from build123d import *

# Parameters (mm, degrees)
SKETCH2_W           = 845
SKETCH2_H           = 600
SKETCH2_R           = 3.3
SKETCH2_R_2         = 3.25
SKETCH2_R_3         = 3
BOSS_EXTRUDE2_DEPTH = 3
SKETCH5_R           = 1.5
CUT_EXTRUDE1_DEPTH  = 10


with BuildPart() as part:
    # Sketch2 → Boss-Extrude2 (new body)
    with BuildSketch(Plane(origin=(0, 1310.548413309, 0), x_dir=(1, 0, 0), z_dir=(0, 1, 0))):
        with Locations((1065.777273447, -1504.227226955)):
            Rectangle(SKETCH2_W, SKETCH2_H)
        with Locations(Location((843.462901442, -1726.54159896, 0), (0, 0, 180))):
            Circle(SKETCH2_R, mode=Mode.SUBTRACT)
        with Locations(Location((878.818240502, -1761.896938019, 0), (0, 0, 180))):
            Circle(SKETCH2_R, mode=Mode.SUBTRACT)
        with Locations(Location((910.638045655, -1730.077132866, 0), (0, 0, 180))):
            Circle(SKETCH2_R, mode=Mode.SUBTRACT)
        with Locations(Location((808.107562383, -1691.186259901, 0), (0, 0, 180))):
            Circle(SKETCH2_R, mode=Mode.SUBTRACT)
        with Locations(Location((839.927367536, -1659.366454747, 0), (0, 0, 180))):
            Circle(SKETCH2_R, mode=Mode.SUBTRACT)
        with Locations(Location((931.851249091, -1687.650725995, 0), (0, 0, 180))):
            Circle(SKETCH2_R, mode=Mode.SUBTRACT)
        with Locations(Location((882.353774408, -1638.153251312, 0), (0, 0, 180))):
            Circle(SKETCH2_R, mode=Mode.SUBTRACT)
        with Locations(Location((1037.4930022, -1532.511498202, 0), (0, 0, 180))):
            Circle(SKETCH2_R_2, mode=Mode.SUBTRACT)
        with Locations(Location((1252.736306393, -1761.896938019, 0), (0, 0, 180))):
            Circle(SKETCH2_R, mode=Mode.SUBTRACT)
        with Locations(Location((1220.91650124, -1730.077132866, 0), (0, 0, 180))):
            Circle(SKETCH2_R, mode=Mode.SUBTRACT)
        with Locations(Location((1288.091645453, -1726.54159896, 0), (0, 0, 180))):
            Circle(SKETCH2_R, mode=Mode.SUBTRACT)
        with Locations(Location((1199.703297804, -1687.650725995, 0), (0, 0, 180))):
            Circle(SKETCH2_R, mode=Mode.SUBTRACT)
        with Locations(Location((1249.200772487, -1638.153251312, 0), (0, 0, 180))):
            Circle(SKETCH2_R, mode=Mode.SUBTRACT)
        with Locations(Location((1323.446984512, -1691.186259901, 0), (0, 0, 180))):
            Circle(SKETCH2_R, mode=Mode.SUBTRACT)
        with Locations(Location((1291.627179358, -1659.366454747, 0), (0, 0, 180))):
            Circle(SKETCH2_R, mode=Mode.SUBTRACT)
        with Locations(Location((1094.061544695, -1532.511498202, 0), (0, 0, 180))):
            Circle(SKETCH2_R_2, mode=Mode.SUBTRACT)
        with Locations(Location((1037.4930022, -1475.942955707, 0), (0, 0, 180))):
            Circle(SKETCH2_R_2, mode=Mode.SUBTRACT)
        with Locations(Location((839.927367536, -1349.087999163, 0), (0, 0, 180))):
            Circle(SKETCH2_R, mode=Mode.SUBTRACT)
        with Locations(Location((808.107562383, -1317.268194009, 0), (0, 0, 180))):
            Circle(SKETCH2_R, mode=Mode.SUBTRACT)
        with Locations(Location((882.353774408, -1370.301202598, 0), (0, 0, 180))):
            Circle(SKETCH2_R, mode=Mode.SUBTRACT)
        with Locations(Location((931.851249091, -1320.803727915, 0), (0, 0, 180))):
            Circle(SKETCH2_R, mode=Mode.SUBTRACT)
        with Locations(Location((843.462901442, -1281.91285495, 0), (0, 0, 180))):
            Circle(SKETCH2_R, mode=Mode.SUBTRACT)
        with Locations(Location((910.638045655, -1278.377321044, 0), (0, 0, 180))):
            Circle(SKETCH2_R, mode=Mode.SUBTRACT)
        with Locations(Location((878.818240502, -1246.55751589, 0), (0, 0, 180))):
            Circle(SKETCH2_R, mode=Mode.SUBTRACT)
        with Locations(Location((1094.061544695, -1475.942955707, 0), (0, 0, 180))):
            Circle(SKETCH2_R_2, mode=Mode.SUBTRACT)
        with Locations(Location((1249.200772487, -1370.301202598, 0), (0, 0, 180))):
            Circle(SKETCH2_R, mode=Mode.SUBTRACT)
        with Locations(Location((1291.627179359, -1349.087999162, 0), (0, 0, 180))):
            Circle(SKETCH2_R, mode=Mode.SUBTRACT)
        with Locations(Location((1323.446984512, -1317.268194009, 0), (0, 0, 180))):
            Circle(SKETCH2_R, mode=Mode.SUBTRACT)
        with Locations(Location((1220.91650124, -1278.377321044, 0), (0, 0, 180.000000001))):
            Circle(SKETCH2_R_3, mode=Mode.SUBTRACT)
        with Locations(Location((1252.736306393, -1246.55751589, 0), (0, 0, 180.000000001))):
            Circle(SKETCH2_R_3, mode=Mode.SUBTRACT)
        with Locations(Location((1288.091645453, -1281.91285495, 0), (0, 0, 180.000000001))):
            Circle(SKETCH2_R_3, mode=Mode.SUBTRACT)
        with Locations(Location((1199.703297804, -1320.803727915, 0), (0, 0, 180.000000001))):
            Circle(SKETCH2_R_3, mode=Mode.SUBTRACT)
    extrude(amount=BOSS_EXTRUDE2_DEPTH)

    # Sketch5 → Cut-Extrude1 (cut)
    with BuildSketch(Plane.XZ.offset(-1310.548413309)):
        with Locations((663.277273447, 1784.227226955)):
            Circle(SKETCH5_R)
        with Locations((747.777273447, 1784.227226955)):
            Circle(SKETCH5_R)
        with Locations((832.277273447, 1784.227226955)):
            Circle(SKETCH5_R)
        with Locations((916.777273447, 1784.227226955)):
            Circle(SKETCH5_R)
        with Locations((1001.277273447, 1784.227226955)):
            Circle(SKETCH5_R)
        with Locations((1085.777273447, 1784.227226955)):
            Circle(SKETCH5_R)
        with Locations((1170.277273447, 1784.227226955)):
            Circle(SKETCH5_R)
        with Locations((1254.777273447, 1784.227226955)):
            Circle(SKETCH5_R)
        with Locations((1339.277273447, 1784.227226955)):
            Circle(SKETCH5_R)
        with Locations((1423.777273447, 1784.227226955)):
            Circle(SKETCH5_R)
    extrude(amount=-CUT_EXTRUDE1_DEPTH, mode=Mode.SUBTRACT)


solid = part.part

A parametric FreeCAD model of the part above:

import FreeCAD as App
import Part
import Sketcher

V = App.Vector


def add_polygon(sketch, points):
    """Adds a closed chain of lines whose ends are joined by coincident constraints."""
    first, n = sketch.GeometryCount, len(points)
    for a, b in zip(points, points[1:] + points[:1]):
        sketch.addGeometry(Part.LineSegment(App.Vector(*a, 0), App.Vector(*b, 0)), False)
    for i in range(n):
        sketch.addConstraint(Sketcher.Constraint("Coincident", first + i, 2, first + (i + 1) % n, 1))

doc = App.newDocument("Part")
body = doc.addObject("PartDesign::Body", "Body")

sketch1 = doc.addObject("Sketcher::SketchObject", "Sketch")
body.addObject(sketch1)
sketch1.AttachmentSupport = (doc.XZ_Plane, [""])
sketch1.MapMode = "FlatFace"
sketch1.AttachmentOffset = App.Placement(V(0, 0, -1310.548413), App.Rotation())
add_polygon(sketch1, [(643.3, 1204.2), (643.3, 1804.2), (1488.3, 1804.2), (1488.3, 1204.2)])
sketch1.addGeometry(Part.Circle(V(843.5, 1726.5, 0), V(0, 0, 1), 3.3), False)
sketch1.addGeometry(Part.Circle(V(878.8, 1761.9, 0), V(0, 0, 1), 3.3), False)
sketch1.addGeometry(Part.Circle(V(910.6, 1730.1, 0), V(0, 0, 1), 3.3), False)
sketch1.addGeometry(Part.Circle(V(808.1, 1691.2, 0), V(0, 0, 1), 3.3), False)
sketch1.addGeometry(Part.Circle(V(839.9, 1659.4, 0), V(0, 0, 1), 3.3), False)
sketch1.addGeometry(Part.Circle(V(931.9, 1687.7, 0), V(0, 0, 1), 3.3), False)
sketch1.addGeometry(Part.Circle(V(882.4, 1638.2, 0), V(0, 0, 1), 3.3), False)
sketch1.addGeometry(Part.Circle(V(1037.5, 1532.5, 0), V(0, 0, 1), 3.2), False)
sketch1.addGeometry(Part.Circle(V(1252.7, 1761.9, 0), V(0, 0, 1), 3.3), False)
sketch1.addGeometry(Part.Circle(V(1220.9, 1730.1, 0), V(0, 0, 1), 3.3), False)
sketch1.addGeometry(Part.Circle(V(1288.1, 1726.5, 0), V(0, 0, 1), 3.3), False)
sketch1.addGeometry(Part.Circle(V(1199.7, 1687.7, 0), V(0, 0, 1), 3.3), False)
sketch1.addGeometry(Part.Circle(V(1249.2, 1638.2, 0), V(0, 0, 1), 3.3), False)
sketch1.addGeometry(Part.Circle(V(1323.4, 1691.2, 0), V(0, 0, 1), 3.3), False)
sketch1.addGeometry(Part.Circle(V(1291.6, 1659.4, 0), V(0, 0, 1), 3.3), False)
sketch1.addGeometry(Part.Circle(V(1094.1, 1532.5, 0), V(0, 0, 1), 3.2), False)
sketch1.addGeometry(Part.Circle(V(1037.5, 1475.9, 0), V(0, 0, 1), 3.2), False)
sketch1.addGeometry(Part.Circle(V(839.9, 1349.1, 0), V(0, 0, 1), 3.3), False)
sketch1.addGeometry(Part.Circle(V(808.1, 1317.3, 0), V(0, 0, 1), 3.3), False)
sketch1.addGeometry(Part.Circle(V(882.4, 1370.3, 0), V(0, 0, 1), 3.3), False)
sketch1.addGeometry(Part.Circle(V(931.9, 1320.8, 0), V(0, 0, 1), 3.3), False)
sketch1.addGeometry(Part.Circle(V(843.5, 1281.9, 0), V(0, 0, 1), 3.3), False)
sketch1.addGeometry(Part.Circle(V(910.6, 1278.4, 0), V(0, 0, 1), 3.3), False)
sketch1.addGeometry(Part.Circle(V(878.8, 1246.6, 0), V(0, 0, 1), 3.3), False)
sketch1.addGeometry(Part.Circle(V(1094.1, 1475.9, 0), V(0, 0, 1), 3.2), False)
sketch1.addGeometry(Part.Circle(V(1249.2, 1370.3, 0), V(0, 0, 1), 3.3), False)
sketch1.addGeometry(Part.Circle(V(1199.7, 1320.8, 0), V(0, 0, 1), 3), False)
sketch1.addGeometry(Part.Circle(V(1291.6, 1349.1, 0), V(0, 0, 1), 3.3), False)
sketch1.addGeometry(Part.Circle(V(1323.4, 1317.3, 0), V(0, 0, 1), 3.3), False)
sketch1.addGeometry(Part.Circle(V(1220.9, 1278.4, 0), V(0, 0, 1), 3), False)
sketch1.addGeometry(Part.Circle(V(1252.7, 1246.6, 0), V(0, 0, 1), 3), False)
sketch1.addGeometry(Part.Circle(V(1288.1, 1281.9, 0), V(0, 0, 1), 3), False)
sketch1.addConstraint(Sketcher.Constraint("Vertical", 0))
sketch1.addConstraint(Sketcher.Constraint("Horizontal", 1))
sketch1.addConstraint(Sketcher.Constraint("Vertical", 2))
sketch1.addConstraint(Sketcher.Constraint("Horizontal", 3))
sketch1.addConstraint(Sketcher.Constraint("Equal", 4, 5))
sketch1.addConstraint(Sketcher.Constraint("Equal", 5, 6))
sketch1.addConstraint(Sketcher.Constraint("Equal", 6, 7))
sketch1.addConstraint(Sketcher.Constraint("Equal", 7, 8))
sketch1.addConstraint(Sketcher.Constraint("Equal", 8, 9))
sketch1.addConstraint(Sketcher.Constraint("Equal", 9, 10))
sketch1.addConstraint(Sketcher.Constraint("Equal", 10, 12))
sketch1.addConstraint(Sketcher.Constraint("Equal", 12, 13))
sketch1.addConstraint(Sketcher.Constraint("Equal", 13, 14))
sketch1.addConstraint(Sketcher.Constraint("Equal", 14, 15))
sketch1.addConstraint(Sketcher.Constraint("Equal", 15, 16))
sketch1.addConstraint(Sketcher.Constraint("Equal", 16, 17))
sketch1.addConstraint(Sketcher.Constraint("Equal", 17, 18))
sketch1.addConstraint(Sketcher.Constraint("Equal", 11, 19))
sketch1.addConstraint(Sketcher.Constraint("Equal", 19, 20))
sketch1.addConstraint(Sketcher.Constraint("Equal", 18, 21))
sketch1.addConstraint(Sketcher.Constraint("Equal", 21, 22))
sketch1.addConstraint(Sketcher.Constraint("Equal", 22, 23))
sketch1.addConstraint(Sketcher.Constraint("Equal", 23, 24))
sketch1.addConstraint(Sketcher.Constraint("Equal", 24, 25))
sketch1.addConstraint(Sketcher.Constraint("Equal", 25, 26))
sketch1.addConstraint(Sketcher.Constraint("Equal", 26, 27))
sketch1.addConstraint(Sketcher.Constraint("Equal", 20, 28))
sketch1.addConstraint(Sketcher.Constraint("Equal", 27, 29))
sketch1.addConstraint(Sketcher.Constraint("Equal", 29, 31))
sketch1.addConstraint(Sketcher.Constraint("Equal", 31, 32))
sketch1.addConstraint(Sketcher.Constraint("Equal", 30, 33))
sketch1.addConstraint(Sketcher.Constraint("Equal", 33, 34))
sketch1.addConstraint(Sketcher.Constraint("Equal", 34, 35))
sketch1.addConstraint(Sketcher.Constraint("Horizontal", 5, 3, 12, 3))
sketch1.addConstraint(Sketcher.Constraint("Horizontal", 6, 3, 13, 3))
sketch1.addConstraint(Sketcher.Constraint("Horizontal", 4, 3, 14, 3))
sketch1.addConstraint(Sketcher.Constraint("Horizontal", 9, 3, 15, 3))
sketch1.addConstraint(Sketcher.Constraint("Horizontal", 10, 3, 16, 3))
sketch1.addConstraint(Sketcher.Constraint("Horizontal", 7, 3, 17, 3))
sketch1.addConstraint(Sketcher.Constraint("Horizontal", 8, 3, 18, 3))
sketch1.addConstraint(Sketcher.Constraint("Horizontal", 11, 3, 19, 3))
sketch1.addConstraint(Sketcher.Constraint("Horizontal", 20, 3, 28, 3))
sketch1.addConstraint(Sketcher.Constraint("Horizontal", 23, 3, 29, 3))
sketch1.addConstraint(Sketcher.Constraint("Horizontal", 24, 3, 30, 3))
sketch1.addConstraint(Sketcher.Constraint("Horizontal", 21, 3, 31, 3))
sketch1.addConstraint(Sketcher.Constraint("Horizontal", 22, 3, 32, 3))
sketch1.addConstraint(Sketcher.Constraint("Horizontal", 26, 3, 33, 3))
sketch1.addConstraint(Sketcher.Constraint("Horizontal", 27, 3, 34, 3))
sketch1.addConstraint(Sketcher.Constraint("Horizontal", 25, 3, 35, 3))
sketch1.addConstraint(Sketcher.Constraint("Vertical", 11, 3, 20, 3))
sketch1.addConstraint(Sketcher.Constraint("Vertical", 8, 3, 21, 3))
sketch1.addConstraint(Sketcher.Constraint("Vertical", 7, 3, 22, 3))
sketch1.addConstraint(Sketcher.Constraint("Vertical", 10, 3, 23, 3))
sketch1.addConstraint(Sketcher.Constraint("Vertical", 9, 3, 24, 3))
sketch1.addConstraint(Sketcher.Constraint("Vertical", 4, 3, 25, 3))
sketch1.addConstraint(Sketcher.Constraint("Vertical", 6, 3, 26, 3))
sketch1.addConstraint(Sketcher.Constraint("Vertical", 5, 3, 27, 3))
sketch1.addConstraint(Sketcher.Constraint("Vertical", 19, 3, 28, 3))
sketch1.addConstraint(Sketcher.Constraint("Vertical", 16, 3, 29, 3))
sketch1.addConstraint(Sketcher.Constraint("Vertical", 15, 3, 30, 3))
sketch1.addConstraint(Sketcher.Constraint("Vertical", 18, 3, 31, 3))
sketch1.addConstraint(Sketcher.Constraint("Vertical", 17, 3, 32, 3))
sketch1.addConstraint(Sketcher.Constraint("Vertical", 13, 3, 33, 3))
sketch1.addConstraint(Sketcher.Constraint("Vertical", 12, 3, 34, 3))
sketch1.addConstraint(Sketcher.Constraint("Vertical", 14, 3, 35, 3))
sketch1.addConstraint(Sketcher.Constraint("Diameter", 30, 6.0))
sketch1.addConstraint(Sketcher.Constraint("Diameter", 4, 6.6))
sketch1.addConstraint(Sketcher.Constraint("Diameter", 11, 6.5))
sketch1.addConstraint(Sketcher.Constraint("DistanceX", 1, 1, 1, 2, 845.0))
sketch1.addConstraint(Sketcher.Constraint("DistanceY", 0, 1, 0, 2, 600.0))
sketch1.addConstraint(Sketcher.Constraint("DistanceY", -1, 1, 21, 3, 1349.087999))
sketch1.addConstraint(Sketcher.Constraint("DistanceX", -1, 1, 4, 3, 843.462901))
sketch1.addConstraint(Sketcher.Constraint("DistanceY", -1, 1, 4, 3, 1726.541599))
sketch1.addConstraint(Sketcher.Constraint("DistanceY", -1, 1, 11, 3, 1532.511498))
sketch1.addConstraint(Sketcher.Constraint("DistanceX", -1, 1, 13, 3, 1220.916501))
sketch1.addConstraint(Sketcher.Constraint("DistanceX", 4, 3, 11, 3, 194.030101))
sketch1.addConstraint(Sketcher.Constraint("DistanceX", 6, 3, 14, 3, 377.4536))
sketch1.addConstraint(Sketcher.Constraint("DistanceY", 25, 3, 20, 3, 194.030101))
sketch1.addConstraint(Sketcher.Constraint("DistanceX", -1, 1, 5, 3, 878.818241))
sketch1.addConstraint(Sketcher.Constraint("DistanceY", -1, 1, 5, 3, 1761.896938))
sketch1.addConstraint(Sketcher.Constraint("DistanceY", -1, 1, 7, 3, 1691.18626))
sketch1.addConstraint(Sketcher.Constraint("DistanceX", -1, 1, 9, 3, 931.851249))
sketch1.addConstraint(Sketcher.Constraint("DistanceY", -1, 1, 10, 3, 1638.153251))
sketch1.addConstraint(Sketcher.Constraint("DistanceX", -1, 1, 18, 3, 1291.627179))
sketch1.addConstraint(Sketcher.Constraint("DistanceY", -1, 1, 26, 3, 1278.377321))
sketch1.addConstraint(Sketcher.Constraint("DistanceX", 7, 3, 4, 3, 35.355339))
sketch1.addConstraint(Sketcher.Constraint("DistanceX", 8, 3, 6, 3, 70.710678))
sketch1.addConstraint(Sketcher.Constraint("DistanceY", 8, 3, 6, 3, 70.710678))
sketch1.addConstraint(Sketcher.Constraint("DistanceX", 8, 3, 9, 3, 91.923882))
sketch1.addConstraint(Sketcher.Constraint("DistanceY", 8, 3, 9, 3, 28.284271))
sketch1.addConstraint(Sketcher.Constraint("DistanceX", 10, 3, 6, 3, 28.284271))
sketch1.addConstraint(Sketcher.Constraint("DistanceY", 10, 3, 6, 3, 91.923882))
sketch1.addConstraint(Sketcher.Constraint("DistanceX", 6, 3, 12, 3, 342.098261))
sketch1.addConstraint(Sketcher.Constraint("DistanceX", 15, 3, 12, 3, 53.033009))
sketch1.addConstraint(Sketcher.Constraint("DistanceX", 13, 3, 16, 3, 28.284271))
sketch1.addConstraint(Sketcher.Constraint("DistanceX", 14, 3, 17, 3, 35.355339))
sketch1.addConstraint(Sketcher.Constraint("DistanceY", 20, 3, 9, 3, 211.70777))
sketch1.addConstraint(Sketcher.Constraint("DistanceY", 22, 3, 20, 3, 158.674762))
sketch1.addConstraint(Sketcher.Constraint("DistanceY", 22, 3, 23, 3, 53.033009))
sketch1.addConstraint(Sketcher.Constraint("DistanceX", 23, 3, 19, 3, 211.70777))
sketch1.addConstraint(Sketcher.Constraint("DistanceY", 24, 3, 21, 3, 28.284271))
sketch1.addConstraint(Sketcher.Constraint("DistanceY", 27, 3, 25, 3, 35.355339))
sketch1.addConstraint(Sketcher.Constraint("DistanceX", 0, 2, 7, 3, 164.830289))
sketch1.addConstraint(Sketcher.Constraint("DistanceY", 5, 3, 0, 2, 42.330289))
pad1 = doc.addObject("PartDesign::Pad", "Pad")
body.addObject(pad1)
pad1.Profile = sketch1
pad1.Length = 3
pad1.Reversed = True

sketch2 = doc.addObject("Sketcher::SketchObject", "Sketch001")
body.addObject(sketch2)
sketch2.AttachmentSupport = (doc.XZ_Plane, [""])
sketch2.MapMode = "FlatFace"
sketch2.AttachmentOffset = App.Placement(V(0, 0, -1310.548413), App.Rotation())
sketch2.addGeometry(Part.Circle(V(663.3, 1784.2, 0), V(0, 0, 1), 1.5), False)
sketch2.addGeometry(Part.Circle(V(747.8, 1784.2, 0), V(0, 0, 1), 1.5), False)
sketch2.addGeometry(Part.Circle(V(832.3, 1784.2, 0), V(0, 0, 1), 1.5), False)
sketch2.addGeometry(Part.Circle(V(916.8, 1784.2, 0), V(0, 0, 1), 1.5), False)
sketch2.addGeometry(Part.Circle(V(1001.3, 1784.2, 0), V(0, 0, 1), 1.5), False)
sketch2.addGeometry(Part.Circle(V(1085.8, 1784.2, 0), V(0, 0, 1), 1.5), False)
sketch2.addGeometry(Part.Circle(V(1170.3, 1784.2, 0), V(0, 0, 1), 1.5), False)
sketch2.addGeometry(Part.Circle(V(1254.8, 1784.2, 0), V(0, 0, 1), 1.5), False)
sketch2.addGeometry(Part.Circle(V(1339.3, 1784.2, 0), V(0, 0, 1), 1.5), False)
sketch2.addGeometry(Part.Circle(V(1423.8, 1784.2, 0), V(0, 0, 1), 1.5), False)
sketch2.addConstraint(Sketcher.Constraint("Equal", 0, 1))
sketch2.addConstraint(Sketcher.Constraint("Equal", 1, 2))
sketch2.addConstraint(Sketcher.Constraint("Equal", 2, 3))
sketch2.addConstraint(Sketcher.Constraint("Equal", 3, 4))
sketch2.addConstraint(Sketcher.Constraint("Equal", 4, 5))
sketch2.addConstraint(Sketcher.Constraint("Equal", 5, 6))
sketch2.addConstraint(Sketcher.Constraint("Equal", 6, 7))
sketch2.addConstraint(Sketcher.Constraint("Equal", 7, 8))
sketch2.addConstraint(Sketcher.Constraint("Equal", 8, 9))
sketch2.addConstraint(Sketcher.Constraint("Horizontal", 0, 3, 1, 3))
sketch2.addConstraint(Sketcher.Constraint("Horizontal", 1, 3, 2, 3))
sketch2.addConstraint(Sketcher.Constraint("Horizontal", 2, 3, 3, 3))
sketch2.addConstraint(Sketcher.Constraint("Horizontal", 3, 3, 4, 3))
sketch2.addConstraint(Sketcher.Constraint("Horizontal", 4, 3, 5, 3))
sketch2.addConstraint(Sketcher.Constraint("Horizontal", 5, 3, 6, 3))
sketch2.addConstraint(Sketcher.Constraint("Horizontal", 6, 3, 7, 3))
sketch2.addConstraint(Sketcher.Constraint("Horizontal", 7, 3, 8, 3))
sketch2.addConstraint(Sketcher.Constraint("Horizontal", 8, 3, 9, 3))
sketch2.addConstraint(Sketcher.Constraint("Diameter", 0, 3.0))
sketch2.addConstraint(Sketcher.Constraint("DistanceX", 0, 3, 2, 3, 169.0))
sketch2.addConstraint(Sketcher.Constraint("DistanceX", 1, 3, 3, 3, 169.0))
sketch2.addConstraint(Sketcher.Constraint("DistanceX", 2, 3, 4, 3, 169.0))
sketch2.addConstraint(Sketcher.Constraint("DistanceX", 3, 3, 5, 3, 169.0))
sketch2.addConstraint(Sketcher.Constraint("DistanceX", 4, 3, 6, 3, 169.0))
sketch2.addConstraint(Sketcher.Constraint("DistanceX", 5, 3, 7, 3, 169.0))
sketch2.addConstraint(Sketcher.Constraint("DistanceX", 6, 3, 8, 3, 169.0))
sketch2.addConstraint(Sketcher.Constraint("DistanceX", 7, 3, 9, 3, 169.0))
sketch2.addConstraint(Sketcher.Constraint("DistanceX", 0, 3, 1, 3, 84.5))
sketch2.addConstraint(Sketcher.Constraint("DistanceX", -1, 1, 0, 3, 663.277273))
sketch2.addConstraint(Sketcher.Constraint("DistanceY", -1, 1, 0, 3, 1784.227227))
pocket1 = doc.addObject("PartDesign::Pocket", "Pocket")
body.addObject(pocket1)
pocket1.Profile = sketch2
pocket1.Length = 10

doc.recompute()
